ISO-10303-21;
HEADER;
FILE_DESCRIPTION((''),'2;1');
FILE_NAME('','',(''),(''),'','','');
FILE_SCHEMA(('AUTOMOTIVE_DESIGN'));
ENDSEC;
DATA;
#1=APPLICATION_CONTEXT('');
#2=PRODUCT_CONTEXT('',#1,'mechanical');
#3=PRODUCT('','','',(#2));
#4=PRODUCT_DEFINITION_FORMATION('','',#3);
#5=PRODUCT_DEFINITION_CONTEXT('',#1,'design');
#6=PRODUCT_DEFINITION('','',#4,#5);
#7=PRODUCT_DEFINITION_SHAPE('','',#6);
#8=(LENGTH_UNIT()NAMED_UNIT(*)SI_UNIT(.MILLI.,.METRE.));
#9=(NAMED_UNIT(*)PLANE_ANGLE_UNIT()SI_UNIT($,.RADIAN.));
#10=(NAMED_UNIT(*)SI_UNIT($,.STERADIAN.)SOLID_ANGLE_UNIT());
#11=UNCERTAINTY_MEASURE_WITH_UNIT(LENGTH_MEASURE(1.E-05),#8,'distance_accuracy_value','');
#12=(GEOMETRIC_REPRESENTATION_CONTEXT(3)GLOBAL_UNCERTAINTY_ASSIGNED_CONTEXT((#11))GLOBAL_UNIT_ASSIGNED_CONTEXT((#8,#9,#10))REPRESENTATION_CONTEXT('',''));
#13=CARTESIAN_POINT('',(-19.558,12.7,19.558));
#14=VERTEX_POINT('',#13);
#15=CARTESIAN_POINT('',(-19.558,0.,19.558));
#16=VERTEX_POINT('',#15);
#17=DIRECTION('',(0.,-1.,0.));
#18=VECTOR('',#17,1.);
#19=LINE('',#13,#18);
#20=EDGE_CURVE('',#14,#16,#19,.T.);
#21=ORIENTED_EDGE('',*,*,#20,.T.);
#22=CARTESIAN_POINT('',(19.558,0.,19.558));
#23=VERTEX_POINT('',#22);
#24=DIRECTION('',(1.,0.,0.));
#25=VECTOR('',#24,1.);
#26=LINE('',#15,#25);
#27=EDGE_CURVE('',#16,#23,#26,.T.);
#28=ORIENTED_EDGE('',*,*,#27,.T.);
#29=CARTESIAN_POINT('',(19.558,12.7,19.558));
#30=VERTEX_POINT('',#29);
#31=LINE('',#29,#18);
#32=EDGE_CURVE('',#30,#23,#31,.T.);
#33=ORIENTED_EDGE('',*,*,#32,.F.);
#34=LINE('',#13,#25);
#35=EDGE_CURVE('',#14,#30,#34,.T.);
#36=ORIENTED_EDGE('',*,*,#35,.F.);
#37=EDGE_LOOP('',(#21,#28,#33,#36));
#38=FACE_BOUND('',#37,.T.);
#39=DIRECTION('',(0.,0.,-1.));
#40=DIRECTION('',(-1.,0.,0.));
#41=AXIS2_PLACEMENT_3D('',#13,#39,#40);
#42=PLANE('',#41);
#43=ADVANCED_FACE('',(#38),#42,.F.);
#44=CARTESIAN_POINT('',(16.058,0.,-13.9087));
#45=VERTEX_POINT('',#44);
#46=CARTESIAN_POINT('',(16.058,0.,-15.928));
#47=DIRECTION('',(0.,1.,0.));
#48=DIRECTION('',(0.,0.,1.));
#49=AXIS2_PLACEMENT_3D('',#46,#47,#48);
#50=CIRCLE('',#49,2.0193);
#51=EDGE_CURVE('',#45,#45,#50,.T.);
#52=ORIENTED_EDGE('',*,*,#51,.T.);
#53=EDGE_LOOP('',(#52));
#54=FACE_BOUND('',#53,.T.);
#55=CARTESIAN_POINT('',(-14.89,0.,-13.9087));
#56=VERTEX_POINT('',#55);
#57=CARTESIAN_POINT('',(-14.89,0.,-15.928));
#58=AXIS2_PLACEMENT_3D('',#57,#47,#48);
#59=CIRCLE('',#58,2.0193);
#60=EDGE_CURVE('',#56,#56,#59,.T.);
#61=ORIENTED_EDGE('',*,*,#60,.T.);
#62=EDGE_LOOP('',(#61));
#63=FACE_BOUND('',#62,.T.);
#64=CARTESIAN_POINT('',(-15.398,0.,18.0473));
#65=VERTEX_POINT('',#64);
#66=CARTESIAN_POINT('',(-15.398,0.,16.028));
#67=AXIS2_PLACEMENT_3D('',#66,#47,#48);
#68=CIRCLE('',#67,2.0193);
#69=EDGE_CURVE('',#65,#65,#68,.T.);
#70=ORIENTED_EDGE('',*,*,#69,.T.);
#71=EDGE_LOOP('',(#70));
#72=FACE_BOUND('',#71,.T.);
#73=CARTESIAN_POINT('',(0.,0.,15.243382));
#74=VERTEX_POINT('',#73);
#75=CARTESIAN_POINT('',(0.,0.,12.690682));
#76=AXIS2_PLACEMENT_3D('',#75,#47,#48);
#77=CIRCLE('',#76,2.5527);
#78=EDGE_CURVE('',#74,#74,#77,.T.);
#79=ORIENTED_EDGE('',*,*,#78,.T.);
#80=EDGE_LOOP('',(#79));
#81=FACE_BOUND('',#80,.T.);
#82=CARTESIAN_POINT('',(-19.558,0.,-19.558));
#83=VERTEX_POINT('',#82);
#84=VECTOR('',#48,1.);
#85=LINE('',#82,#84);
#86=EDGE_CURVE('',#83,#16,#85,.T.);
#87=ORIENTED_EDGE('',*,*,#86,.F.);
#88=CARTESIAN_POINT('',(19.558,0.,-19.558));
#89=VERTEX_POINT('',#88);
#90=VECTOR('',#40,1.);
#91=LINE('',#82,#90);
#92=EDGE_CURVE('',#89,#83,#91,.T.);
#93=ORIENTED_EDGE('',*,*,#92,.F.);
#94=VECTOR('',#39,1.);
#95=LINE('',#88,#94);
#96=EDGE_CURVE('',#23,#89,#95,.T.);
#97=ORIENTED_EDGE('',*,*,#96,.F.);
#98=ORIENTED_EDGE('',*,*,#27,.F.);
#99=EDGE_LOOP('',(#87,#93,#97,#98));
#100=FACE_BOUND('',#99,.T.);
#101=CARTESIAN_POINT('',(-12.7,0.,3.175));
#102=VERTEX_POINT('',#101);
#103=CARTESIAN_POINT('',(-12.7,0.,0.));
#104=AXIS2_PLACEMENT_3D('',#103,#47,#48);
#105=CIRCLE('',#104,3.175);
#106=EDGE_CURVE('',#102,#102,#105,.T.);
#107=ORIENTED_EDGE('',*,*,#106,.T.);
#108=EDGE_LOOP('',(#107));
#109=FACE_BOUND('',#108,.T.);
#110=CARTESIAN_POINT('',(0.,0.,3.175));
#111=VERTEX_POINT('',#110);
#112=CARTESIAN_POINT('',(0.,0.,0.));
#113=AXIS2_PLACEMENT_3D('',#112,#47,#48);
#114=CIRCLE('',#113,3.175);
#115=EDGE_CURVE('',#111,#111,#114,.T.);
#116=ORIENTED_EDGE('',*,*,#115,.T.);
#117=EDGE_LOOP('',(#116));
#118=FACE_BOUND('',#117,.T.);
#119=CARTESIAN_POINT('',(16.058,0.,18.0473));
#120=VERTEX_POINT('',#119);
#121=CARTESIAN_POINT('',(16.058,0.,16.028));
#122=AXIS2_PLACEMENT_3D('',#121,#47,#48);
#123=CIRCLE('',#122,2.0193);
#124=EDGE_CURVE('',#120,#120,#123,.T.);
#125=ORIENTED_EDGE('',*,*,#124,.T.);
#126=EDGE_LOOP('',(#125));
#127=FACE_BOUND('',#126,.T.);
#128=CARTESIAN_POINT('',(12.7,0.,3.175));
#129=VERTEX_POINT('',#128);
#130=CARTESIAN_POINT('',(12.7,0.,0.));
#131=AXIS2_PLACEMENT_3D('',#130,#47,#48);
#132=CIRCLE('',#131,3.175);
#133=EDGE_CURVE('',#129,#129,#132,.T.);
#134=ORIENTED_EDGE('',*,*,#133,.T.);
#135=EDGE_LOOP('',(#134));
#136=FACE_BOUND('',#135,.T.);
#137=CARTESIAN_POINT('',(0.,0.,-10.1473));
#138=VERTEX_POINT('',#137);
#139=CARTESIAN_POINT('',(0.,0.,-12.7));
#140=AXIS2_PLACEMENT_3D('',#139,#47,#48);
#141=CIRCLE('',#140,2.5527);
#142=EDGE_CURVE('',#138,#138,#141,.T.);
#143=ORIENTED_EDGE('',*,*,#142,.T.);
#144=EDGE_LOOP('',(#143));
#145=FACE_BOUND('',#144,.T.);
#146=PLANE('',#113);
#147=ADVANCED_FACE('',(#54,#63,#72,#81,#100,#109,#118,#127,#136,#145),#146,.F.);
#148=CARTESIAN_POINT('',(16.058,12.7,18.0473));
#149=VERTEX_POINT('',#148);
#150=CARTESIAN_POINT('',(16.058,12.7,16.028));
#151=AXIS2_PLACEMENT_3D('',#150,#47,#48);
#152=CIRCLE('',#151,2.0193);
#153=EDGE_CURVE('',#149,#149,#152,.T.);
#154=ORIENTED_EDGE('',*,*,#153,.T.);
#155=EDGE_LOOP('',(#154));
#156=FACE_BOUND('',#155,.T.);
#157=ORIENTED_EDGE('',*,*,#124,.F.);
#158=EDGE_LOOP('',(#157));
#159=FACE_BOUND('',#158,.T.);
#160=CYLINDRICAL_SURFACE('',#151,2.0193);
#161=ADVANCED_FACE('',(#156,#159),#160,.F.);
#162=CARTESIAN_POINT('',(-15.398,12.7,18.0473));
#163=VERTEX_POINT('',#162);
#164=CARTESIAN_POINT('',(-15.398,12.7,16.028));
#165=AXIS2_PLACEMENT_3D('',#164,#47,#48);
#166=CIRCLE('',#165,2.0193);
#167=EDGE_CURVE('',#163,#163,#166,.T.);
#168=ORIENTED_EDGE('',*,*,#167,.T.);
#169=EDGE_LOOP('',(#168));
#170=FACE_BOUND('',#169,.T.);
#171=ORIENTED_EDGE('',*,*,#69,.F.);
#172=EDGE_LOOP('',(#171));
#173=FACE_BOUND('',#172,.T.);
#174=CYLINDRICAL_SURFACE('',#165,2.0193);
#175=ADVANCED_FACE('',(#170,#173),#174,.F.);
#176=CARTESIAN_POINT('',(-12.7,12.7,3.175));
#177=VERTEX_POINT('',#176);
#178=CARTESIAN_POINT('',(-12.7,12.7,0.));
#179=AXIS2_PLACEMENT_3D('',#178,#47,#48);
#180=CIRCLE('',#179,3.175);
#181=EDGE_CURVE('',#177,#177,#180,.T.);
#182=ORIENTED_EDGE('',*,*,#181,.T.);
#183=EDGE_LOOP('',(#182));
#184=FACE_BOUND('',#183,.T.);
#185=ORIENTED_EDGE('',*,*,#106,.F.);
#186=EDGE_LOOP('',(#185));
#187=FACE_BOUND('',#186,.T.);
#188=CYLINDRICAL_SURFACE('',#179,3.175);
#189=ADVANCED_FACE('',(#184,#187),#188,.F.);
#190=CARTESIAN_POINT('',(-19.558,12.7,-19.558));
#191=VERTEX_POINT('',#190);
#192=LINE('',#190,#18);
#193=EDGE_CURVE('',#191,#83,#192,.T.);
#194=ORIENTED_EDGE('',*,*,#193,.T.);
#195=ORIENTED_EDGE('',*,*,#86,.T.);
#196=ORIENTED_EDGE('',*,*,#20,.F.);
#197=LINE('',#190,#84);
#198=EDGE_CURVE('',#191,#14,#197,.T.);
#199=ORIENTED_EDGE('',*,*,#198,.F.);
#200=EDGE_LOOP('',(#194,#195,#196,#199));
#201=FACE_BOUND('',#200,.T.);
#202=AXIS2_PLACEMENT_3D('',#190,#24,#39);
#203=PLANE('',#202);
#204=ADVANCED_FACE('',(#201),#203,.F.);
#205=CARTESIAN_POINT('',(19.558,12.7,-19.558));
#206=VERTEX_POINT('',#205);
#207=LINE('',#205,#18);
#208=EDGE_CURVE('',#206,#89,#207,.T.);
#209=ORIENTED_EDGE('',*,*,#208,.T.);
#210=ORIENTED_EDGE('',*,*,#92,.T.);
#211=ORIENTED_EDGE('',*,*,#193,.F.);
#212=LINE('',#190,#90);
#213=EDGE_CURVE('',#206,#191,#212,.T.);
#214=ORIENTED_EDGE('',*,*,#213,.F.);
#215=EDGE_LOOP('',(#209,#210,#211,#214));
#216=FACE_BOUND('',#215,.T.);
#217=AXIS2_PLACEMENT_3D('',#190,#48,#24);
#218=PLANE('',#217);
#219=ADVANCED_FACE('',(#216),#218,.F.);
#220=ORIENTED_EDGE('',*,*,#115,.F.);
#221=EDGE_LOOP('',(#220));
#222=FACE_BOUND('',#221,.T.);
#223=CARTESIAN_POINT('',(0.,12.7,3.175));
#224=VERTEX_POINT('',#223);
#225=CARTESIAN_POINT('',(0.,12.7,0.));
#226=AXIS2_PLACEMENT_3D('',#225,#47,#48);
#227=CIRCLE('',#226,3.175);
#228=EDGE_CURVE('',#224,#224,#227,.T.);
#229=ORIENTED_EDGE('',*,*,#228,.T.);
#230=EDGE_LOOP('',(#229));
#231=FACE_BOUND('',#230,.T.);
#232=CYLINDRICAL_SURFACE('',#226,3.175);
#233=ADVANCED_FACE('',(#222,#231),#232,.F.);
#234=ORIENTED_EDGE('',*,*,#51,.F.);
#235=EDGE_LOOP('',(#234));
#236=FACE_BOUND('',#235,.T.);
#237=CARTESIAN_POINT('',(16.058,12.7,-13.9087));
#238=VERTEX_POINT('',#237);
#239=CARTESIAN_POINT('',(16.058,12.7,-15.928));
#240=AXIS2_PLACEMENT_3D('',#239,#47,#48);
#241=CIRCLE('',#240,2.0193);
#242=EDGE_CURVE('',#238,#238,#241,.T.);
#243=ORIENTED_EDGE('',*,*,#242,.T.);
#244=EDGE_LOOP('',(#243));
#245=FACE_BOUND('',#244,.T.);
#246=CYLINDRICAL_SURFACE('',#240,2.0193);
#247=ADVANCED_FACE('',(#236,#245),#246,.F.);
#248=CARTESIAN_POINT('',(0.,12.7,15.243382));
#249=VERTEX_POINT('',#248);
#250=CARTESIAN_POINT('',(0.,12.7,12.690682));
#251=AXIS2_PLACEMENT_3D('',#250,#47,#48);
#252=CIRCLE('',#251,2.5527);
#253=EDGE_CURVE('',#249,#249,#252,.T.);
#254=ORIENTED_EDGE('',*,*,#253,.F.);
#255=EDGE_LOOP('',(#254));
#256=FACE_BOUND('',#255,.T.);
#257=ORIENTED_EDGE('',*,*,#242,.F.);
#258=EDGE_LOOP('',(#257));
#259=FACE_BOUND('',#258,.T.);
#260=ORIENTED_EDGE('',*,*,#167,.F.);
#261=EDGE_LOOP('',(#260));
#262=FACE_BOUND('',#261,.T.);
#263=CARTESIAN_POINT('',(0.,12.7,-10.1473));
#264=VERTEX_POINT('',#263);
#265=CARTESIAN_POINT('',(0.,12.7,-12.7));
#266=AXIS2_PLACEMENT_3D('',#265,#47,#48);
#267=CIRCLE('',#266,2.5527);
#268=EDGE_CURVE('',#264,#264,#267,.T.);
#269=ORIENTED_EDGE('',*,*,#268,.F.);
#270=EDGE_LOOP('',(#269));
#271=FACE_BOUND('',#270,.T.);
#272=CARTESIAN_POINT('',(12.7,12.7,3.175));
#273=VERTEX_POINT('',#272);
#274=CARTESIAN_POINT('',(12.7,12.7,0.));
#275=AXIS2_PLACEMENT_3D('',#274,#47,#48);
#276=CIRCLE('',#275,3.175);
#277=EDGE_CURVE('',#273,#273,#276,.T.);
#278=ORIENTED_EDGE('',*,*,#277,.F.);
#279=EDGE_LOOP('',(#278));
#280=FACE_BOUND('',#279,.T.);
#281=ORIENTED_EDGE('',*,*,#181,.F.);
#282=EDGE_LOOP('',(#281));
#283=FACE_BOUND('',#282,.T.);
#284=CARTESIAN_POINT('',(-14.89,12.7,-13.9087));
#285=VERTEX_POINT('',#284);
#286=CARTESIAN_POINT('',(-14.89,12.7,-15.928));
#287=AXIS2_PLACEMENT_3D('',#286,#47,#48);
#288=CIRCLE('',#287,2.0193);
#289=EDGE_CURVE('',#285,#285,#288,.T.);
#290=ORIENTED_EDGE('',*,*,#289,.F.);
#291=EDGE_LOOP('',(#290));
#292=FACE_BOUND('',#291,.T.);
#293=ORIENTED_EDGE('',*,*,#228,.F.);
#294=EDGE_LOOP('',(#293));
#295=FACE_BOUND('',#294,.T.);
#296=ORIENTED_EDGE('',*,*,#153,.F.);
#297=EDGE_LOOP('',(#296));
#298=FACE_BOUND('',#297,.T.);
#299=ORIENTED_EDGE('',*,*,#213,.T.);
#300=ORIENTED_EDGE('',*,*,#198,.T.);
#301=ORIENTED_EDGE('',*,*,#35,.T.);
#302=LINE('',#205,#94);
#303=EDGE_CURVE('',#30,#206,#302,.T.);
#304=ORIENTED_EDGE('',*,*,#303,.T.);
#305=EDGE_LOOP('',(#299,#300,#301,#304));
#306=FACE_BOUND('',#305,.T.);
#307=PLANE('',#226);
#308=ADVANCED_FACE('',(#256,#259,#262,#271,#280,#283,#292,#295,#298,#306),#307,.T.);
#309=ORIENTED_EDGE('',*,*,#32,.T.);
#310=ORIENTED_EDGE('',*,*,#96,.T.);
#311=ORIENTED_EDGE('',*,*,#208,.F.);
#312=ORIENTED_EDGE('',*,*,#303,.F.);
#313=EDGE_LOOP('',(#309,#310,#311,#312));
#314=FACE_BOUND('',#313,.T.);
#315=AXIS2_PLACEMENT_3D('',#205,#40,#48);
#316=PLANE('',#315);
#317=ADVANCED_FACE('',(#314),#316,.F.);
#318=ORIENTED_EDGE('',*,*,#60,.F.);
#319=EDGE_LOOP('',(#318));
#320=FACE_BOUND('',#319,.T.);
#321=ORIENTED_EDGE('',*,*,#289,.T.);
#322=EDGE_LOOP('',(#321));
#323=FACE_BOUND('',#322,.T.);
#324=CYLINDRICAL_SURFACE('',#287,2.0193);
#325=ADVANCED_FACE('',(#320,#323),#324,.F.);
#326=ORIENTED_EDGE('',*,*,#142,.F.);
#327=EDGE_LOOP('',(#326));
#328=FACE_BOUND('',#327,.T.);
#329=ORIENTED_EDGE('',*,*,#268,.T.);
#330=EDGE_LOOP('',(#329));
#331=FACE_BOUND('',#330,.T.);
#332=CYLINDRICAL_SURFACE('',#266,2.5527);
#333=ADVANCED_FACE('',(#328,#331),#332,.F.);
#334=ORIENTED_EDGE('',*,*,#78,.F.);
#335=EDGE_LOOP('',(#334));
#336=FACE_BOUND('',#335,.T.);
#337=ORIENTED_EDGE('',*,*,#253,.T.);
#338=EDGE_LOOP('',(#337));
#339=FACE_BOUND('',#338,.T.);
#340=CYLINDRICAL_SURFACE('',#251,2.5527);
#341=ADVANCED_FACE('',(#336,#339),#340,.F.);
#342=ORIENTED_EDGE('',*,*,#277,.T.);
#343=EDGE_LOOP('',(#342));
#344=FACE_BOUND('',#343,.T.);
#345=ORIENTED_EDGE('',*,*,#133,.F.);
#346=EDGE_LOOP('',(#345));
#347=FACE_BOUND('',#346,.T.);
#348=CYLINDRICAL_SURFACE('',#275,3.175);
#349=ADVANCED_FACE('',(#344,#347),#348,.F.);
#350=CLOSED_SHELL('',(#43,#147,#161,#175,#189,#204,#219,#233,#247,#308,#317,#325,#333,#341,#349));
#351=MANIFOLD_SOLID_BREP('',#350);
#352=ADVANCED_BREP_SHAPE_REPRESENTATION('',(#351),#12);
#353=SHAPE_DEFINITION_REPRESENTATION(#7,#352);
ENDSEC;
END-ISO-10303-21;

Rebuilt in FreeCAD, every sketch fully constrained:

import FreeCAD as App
import Part
import Sketcher

V = App.Vector
Q = App.Units.Quantity

doc = App.newDocument("Part")
body = doc.addObject("PartDesign::Body", "Body")

# Sketch on XZ plane
sketch1 = body.newObject("Sketcher::SketchObject", "Sketch")
sketch1.AttachmentSupport = (doc.getObject("XZ_Plane"), [""])
sketch1.MapMode = "FlatFace"
sketch1.addGeometry([
    Part.LineSegment(V(-20, -20, 0), V(-20, 20, 0)),
    Part.LineSegment(V(-20, 20, 0), V(20, 20, 0)),
    Part.LineSegment(V(20, 20, 0), V(20, -20, 0)),
    Part.LineSegment(V(20, -20, 0), V(-20, -20, 0)),
], False)
sketch1.addConstraint([
    Sketcher.Constraint("Coincident", 0, 2, 1, 1),
    Sketcher.Constraint("Coincident", 1, 2, 2, 1),
    Sketcher.Constraint("Coincident", 2, 2, 3, 1),
    Sketcher.Constraint("Coincident", 3, 2, 0, 1),
    Sketcher.Constraint("Vertical", 0),
    Sketcher.Constraint("Horizontal", 1),
    Sketcher.Constraint("Vertical", 2),
    Sketcher.Constraint("Horizontal", 3),
    Sketcher.Constraint("Symmetric", 0, 2, 2, 2, -1, 1),
    Sketcher.Constraint("Equal", 3, 0),
    Sketcher.Constraint("DistanceX", 1, 1, 1, 2, Q("1.54 in")),
])
pad1 = body.newObject("PartDesign::Pad", "Pad")
pad1.Profile = sketch1
pad1.Length = Q("0.5 in")
pad1.Reversed = True

# Sketch on XZ plane
sketch2 = body.newObject("Sketcher::SketchObject", "Sketch001")
sketch2.AttachmentSupport = (doc.getObject("XZ_Plane"), [""])
sketch2.MapMode = "FlatFace"
sketch2.AttachmentOffset = App.Placement(V(0, 0, -0.5 * 25.4), App.Rotation())
sketch2.addGeometry([
    Part.Circle(V(-14.9, -15.9, 0), V(0, 0, 1), 2),
    Part.Circle(V(-15.4, 16, 0), V(0, 0, 1), 2),
    Part.Circle(V(16.1, 16, 0), V(0, 0, 1), 2),
    Part.Circle(V(16.1, -15.9, 0), V(0, 0, 1), 2),
], False)
sketch2.addConstraint([
    Sketcher.Constraint("Equal", 0, 1),
    Sketcher.Constraint("Equal", 1, 2),
    Sketcher.Constraint("Equal", 2, 3),
    Sketcher.Constraint("Horizontal", 1, 3, 2, 3),
    Sketcher.Constraint("Horizontal", 0, 3, 3, 3),
    Sketcher.Constraint("Vertical", 2, 3, 3, 3),
    Sketcher.Constraint("Diameter", 0, Q("0.159 in")),
    Sketcher.Constraint("DistanceX", 1, 3, 0, 3, Q("0.02 in")),
    Sketcher.Constraint("DistanceX", 0, 3, -1, 1, Q("14.89 mm")),
    Sketcher.Constraint("DistanceY", 0, 3, -1, 1, Q("15.928 mm")),
    Sketcher.Constraint("DistanceY", -1, 1, 1, 3, Q("16.028 mm")),
    Sketcher.Constraint("DistanceX", -1, 1, 2, 3, Q("16.058 mm")),
])
doc.recompute()
hole = body.newObject("PartDesign::Hole", "Hole")
hole.Profile = sketch2
hole.ThreadType = "None"
hole.Diameter = Q("0.159 in")
hole.DepthType = "Dimension"
hole.Depth = Q("0.5 in")
hole.DrillPoint = "Flat"
hole.Reversed = True

# Sketch on XZ plane
sketch3 = body.newObject("Sketcher::SketchObject", "Sketch002")
sketch3.AttachmentSupport = (doc.getObject("XZ_Plane"), [""])
sketch3.MapMode = "FlatFace"
sketch3.AttachmentOffset = App.Placement(V(0, 0, -0.5 * 25.4), App.Rotation())
sketch3.addGeometry(Part.Circle(V(0, 0, 0), V(0, 0, 1), 3.2), False)
sketch3.addConstraint([
    Sketcher.Constraint("Coincident", 0, 3, -1, 1),
    Sketcher.Constraint("Diameter", 0, Q("0.25 in")),
])
doc.recompute()
hole2 = body.newObject("PartDesign::Hole", "Hole001")
hole2.Profile = sketch3
hole2.ThreadType = "None"
hole2.Diameter = Q("0.25 in")
hole2.DepthType = "Dimension"
hole2.Depth = Q("0.5 in")
hole2.DrillPoint = "Flat"
hole2.Reversed = True
doc.recompute()

linearpattern = body.newObject("PartDesign::LinearPattern", "LinearPattern")
linearpattern.Originals = [hole2]
linearpattern.Direction = (doc.getObject("X_Axis"), [""])
linearpattern.Mode = "offset"
linearpattern.Offset = Q("0.5 in")
linearpattern.Occurrences = 2
linearpattern.Reversed = True
body.Tip = linearpattern
doc.recompute()

linearpattern2 = body.newObject("PartDesign::LinearPattern", "LinearPattern001")
linearpattern2.Originals = [hole2]
linearpattern2.Direction = (doc.getObject("X_Axis"), [""])
linearpattern2.Mode = "offset"
linearpattern2.Offset = Q("0.5 in")
linearpattern2.Occurrences = 2
body.Tip = linearpattern2

# Sketch on XZ plane
sketch4 = body.newObject("Sketcher::SketchObject", "Sketch003")
sketch4.AttachmentSupport = (doc.getObject("XZ_Plane"), [""])
sketch4.MapMode = "FlatFace"
sketch4.AttachmentOffset = App.Placement(V(0, 0, -0.5 * 25.4), App.Rotation())
sketch4.addGeometry([
    Part.Circle(V(0, -12.7, 0), V(0, 0, 1), 2.6),
    Part.Circle(V(0, 12.7, 0), V(0, 0, 1), 2.6),
], False)
sketch4.addConstraint([
    Sketcher.Constraint("Equal", 0, 1),
    Sketcher.Constraint("PointOnObject", 0, 3, -2),
    Sketcher.Constraint("PointOnObject", 1, 3, -2),
    Sketcher.Constraint("Diameter", 0, Q("0.201 in")),
    Sketcher.Constraint("DistanceY", 0, 3, -1, 1, Q("0.5 in")),
    Sketcher.Constraint("DistanceY", -1, 1, 1, 3, Q("12.690682 mm")),
])
doc.recompute()
hole3 = body.newObject("PartDesign::Hole", "Hole002")
hole3.Profile = sketch4
hole3.ThreadType = "None"
hole3.Diameter = Q("0.201 in")
hole3.DepthType = "Dimension"
hole3.Depth = Q("0.5 in")
hole3.DrillPoint = "Flat"
hole3.Reversed = True

doc.recompute()
